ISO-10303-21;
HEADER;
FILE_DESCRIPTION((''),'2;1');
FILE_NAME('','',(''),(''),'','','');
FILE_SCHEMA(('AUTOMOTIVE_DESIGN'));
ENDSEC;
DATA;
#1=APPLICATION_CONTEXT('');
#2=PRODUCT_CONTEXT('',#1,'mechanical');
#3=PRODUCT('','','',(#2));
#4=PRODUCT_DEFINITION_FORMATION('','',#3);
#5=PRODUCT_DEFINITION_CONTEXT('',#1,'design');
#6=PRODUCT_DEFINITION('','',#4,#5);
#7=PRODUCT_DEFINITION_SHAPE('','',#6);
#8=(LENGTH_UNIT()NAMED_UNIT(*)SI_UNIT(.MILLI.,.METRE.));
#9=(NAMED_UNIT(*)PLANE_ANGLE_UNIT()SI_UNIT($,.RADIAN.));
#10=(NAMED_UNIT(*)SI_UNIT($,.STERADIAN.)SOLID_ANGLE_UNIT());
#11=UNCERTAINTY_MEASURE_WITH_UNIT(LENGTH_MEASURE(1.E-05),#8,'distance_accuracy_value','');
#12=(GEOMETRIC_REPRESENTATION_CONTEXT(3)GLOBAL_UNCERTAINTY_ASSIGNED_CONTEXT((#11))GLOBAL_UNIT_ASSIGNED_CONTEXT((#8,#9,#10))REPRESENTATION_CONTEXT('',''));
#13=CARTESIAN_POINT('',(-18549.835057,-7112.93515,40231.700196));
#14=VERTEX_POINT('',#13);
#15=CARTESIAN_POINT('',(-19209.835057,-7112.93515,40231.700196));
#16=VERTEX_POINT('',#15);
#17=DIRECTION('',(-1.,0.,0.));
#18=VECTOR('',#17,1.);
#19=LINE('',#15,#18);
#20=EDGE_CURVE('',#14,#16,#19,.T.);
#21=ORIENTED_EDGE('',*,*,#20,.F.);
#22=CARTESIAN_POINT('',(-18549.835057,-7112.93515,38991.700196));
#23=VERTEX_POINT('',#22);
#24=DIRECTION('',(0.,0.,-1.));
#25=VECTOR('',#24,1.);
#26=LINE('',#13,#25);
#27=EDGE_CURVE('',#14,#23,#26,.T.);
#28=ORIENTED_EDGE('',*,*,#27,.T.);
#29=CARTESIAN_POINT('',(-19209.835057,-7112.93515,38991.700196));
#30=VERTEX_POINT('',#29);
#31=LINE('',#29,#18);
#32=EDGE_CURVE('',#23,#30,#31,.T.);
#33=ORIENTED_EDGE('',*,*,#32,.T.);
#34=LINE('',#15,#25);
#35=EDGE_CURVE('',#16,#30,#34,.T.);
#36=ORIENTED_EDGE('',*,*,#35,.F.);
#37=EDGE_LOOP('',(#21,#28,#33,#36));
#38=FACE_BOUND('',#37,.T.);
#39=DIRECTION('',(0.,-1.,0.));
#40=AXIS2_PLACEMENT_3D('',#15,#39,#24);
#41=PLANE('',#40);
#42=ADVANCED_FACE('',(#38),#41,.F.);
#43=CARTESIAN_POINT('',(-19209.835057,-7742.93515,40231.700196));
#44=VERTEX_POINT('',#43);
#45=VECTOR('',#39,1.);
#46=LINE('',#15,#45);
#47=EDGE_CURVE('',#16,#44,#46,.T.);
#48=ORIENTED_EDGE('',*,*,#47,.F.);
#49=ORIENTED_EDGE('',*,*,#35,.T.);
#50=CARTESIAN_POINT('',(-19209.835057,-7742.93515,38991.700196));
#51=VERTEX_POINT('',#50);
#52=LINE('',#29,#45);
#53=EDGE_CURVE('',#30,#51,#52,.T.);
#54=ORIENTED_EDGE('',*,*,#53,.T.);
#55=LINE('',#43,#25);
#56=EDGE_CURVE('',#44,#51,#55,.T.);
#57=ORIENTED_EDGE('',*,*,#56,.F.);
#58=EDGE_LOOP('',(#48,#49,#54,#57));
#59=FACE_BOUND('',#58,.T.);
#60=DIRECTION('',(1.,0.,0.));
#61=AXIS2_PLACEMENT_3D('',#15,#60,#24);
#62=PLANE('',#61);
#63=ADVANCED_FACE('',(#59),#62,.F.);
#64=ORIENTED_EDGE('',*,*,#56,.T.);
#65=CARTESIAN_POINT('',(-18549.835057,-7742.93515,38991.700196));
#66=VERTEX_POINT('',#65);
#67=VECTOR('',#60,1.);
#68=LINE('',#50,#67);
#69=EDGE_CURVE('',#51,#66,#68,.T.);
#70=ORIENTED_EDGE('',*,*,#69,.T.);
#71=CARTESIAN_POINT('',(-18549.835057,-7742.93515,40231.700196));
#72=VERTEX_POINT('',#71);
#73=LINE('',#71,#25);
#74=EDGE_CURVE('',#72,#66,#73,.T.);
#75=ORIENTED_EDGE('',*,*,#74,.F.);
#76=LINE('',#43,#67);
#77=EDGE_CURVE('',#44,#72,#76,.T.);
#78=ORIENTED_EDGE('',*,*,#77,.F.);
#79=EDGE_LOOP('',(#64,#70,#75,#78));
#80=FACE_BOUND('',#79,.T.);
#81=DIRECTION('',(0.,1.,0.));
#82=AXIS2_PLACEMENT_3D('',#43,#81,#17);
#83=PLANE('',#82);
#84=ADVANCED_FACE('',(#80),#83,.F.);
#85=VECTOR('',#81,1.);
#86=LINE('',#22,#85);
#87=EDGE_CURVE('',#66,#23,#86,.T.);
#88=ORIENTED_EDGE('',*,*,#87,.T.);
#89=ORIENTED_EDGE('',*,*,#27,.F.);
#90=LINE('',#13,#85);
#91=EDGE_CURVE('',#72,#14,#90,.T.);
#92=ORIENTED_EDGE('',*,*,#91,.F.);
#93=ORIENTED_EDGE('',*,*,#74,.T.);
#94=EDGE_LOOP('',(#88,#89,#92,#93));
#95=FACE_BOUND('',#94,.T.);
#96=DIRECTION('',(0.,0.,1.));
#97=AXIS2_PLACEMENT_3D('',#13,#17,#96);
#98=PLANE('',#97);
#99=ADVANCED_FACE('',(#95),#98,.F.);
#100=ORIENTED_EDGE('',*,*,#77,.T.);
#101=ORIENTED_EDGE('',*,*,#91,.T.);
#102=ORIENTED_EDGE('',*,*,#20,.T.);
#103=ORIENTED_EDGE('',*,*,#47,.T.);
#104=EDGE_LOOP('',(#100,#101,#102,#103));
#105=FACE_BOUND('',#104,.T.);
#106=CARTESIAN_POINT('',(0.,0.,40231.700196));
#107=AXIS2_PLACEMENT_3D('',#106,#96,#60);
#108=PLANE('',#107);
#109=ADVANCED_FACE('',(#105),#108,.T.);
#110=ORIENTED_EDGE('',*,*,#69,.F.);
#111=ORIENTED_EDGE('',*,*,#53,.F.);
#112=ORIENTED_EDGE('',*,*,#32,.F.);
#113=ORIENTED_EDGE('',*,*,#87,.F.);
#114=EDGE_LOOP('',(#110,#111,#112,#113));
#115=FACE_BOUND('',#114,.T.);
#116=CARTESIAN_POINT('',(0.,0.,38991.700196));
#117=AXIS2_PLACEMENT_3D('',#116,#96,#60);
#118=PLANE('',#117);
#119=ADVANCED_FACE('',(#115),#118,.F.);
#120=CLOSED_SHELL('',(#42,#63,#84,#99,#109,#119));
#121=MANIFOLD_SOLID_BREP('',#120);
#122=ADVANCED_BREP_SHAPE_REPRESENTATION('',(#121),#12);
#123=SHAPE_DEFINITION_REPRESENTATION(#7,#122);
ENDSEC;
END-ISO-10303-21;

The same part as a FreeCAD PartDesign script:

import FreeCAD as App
import Part
import Sketcher

V = App.Vector


def add_polygon(sketch, points):
    """Adds a closed chain of lines whose ends are joined by coincident constraints."""
    first, n = sketch.GeometryCount, len(points)
    for a, b in zip(points, points[1:] + points[:1]):
        sketch.addGeometry(Part.LineSegment(App.Vector(*a, 0), App.Vector(*b, 0)), False)
    for i in range(n):
        sketch.addConstraint(Sketcher.Constraint("Coincident", first + i, 2, first + (i + 1) % n, 1))

doc = App.newDocument("Part")
params = doc.addObject("Spreadsheet::Sheet", "Params")
for row, (alias, value) in enumerate([
    ("sketch1_width", "660 mm"),
    ("sketch1_height", "630 mm"),
    ("pad1_length", "1240 mm"),
], start=1):
    params.set(f"A{row}", alias)
    params.set(f"B{row}", "=" + value)
    params.setAlias(f"B{row}", alias)

body = doc.addObject("PartDesign::Body", "Body")

# Sketch on XY plane
sketch1 = body.newObject("Sketcher::SketchObject", "Sketch")
sketch1.AttachmentSupport = (doc.getObject("XY_Plane"), [""])
sketch1.MapMode = "FlatFace"
sketch1.AttachmentOffset = App.Placement(V(0, 0, 38991.700196), App.Rotation())
add_polygon(sketch1, [(-19210, -7113), (-19210, -7743), (-18550, -7743), (-18550, -7113)])  # lines 0-3
sketch1.addConstraint([
    Sketcher.Constraint("Vertical", 0),
    Sketcher.Constraint("Horizontal", 1),
    Sketcher.Constraint("Vertical", 2),
    Sketcher.Constraint("Horizontal", 3),
    Sketcher.Constraint("DistanceX", 1, 1, 1, 2, 660.0),
    Sketcher.Constraint("DistanceY", 0, 2, 0, 1, 630.0),
    Sketcher.Constraint("DistanceY", 0, 2, -1, 1, 7742.93515),
    Sketcher.Constraint("DistanceX", 0, 2, -1, 1, 19209.835057),
])
sketch1.setExpression("Constraints[8]", "Params.sketch1_width")
sketch1.setExpression("Constraints[9]", "Params.sketch1_height")
pad1 = body.newObject("PartDesign::Pad", "Pad")
pad1.Profile = sketch1
pad1.setExpression("Length", "Params.pad1_length")

doc.recompute()
